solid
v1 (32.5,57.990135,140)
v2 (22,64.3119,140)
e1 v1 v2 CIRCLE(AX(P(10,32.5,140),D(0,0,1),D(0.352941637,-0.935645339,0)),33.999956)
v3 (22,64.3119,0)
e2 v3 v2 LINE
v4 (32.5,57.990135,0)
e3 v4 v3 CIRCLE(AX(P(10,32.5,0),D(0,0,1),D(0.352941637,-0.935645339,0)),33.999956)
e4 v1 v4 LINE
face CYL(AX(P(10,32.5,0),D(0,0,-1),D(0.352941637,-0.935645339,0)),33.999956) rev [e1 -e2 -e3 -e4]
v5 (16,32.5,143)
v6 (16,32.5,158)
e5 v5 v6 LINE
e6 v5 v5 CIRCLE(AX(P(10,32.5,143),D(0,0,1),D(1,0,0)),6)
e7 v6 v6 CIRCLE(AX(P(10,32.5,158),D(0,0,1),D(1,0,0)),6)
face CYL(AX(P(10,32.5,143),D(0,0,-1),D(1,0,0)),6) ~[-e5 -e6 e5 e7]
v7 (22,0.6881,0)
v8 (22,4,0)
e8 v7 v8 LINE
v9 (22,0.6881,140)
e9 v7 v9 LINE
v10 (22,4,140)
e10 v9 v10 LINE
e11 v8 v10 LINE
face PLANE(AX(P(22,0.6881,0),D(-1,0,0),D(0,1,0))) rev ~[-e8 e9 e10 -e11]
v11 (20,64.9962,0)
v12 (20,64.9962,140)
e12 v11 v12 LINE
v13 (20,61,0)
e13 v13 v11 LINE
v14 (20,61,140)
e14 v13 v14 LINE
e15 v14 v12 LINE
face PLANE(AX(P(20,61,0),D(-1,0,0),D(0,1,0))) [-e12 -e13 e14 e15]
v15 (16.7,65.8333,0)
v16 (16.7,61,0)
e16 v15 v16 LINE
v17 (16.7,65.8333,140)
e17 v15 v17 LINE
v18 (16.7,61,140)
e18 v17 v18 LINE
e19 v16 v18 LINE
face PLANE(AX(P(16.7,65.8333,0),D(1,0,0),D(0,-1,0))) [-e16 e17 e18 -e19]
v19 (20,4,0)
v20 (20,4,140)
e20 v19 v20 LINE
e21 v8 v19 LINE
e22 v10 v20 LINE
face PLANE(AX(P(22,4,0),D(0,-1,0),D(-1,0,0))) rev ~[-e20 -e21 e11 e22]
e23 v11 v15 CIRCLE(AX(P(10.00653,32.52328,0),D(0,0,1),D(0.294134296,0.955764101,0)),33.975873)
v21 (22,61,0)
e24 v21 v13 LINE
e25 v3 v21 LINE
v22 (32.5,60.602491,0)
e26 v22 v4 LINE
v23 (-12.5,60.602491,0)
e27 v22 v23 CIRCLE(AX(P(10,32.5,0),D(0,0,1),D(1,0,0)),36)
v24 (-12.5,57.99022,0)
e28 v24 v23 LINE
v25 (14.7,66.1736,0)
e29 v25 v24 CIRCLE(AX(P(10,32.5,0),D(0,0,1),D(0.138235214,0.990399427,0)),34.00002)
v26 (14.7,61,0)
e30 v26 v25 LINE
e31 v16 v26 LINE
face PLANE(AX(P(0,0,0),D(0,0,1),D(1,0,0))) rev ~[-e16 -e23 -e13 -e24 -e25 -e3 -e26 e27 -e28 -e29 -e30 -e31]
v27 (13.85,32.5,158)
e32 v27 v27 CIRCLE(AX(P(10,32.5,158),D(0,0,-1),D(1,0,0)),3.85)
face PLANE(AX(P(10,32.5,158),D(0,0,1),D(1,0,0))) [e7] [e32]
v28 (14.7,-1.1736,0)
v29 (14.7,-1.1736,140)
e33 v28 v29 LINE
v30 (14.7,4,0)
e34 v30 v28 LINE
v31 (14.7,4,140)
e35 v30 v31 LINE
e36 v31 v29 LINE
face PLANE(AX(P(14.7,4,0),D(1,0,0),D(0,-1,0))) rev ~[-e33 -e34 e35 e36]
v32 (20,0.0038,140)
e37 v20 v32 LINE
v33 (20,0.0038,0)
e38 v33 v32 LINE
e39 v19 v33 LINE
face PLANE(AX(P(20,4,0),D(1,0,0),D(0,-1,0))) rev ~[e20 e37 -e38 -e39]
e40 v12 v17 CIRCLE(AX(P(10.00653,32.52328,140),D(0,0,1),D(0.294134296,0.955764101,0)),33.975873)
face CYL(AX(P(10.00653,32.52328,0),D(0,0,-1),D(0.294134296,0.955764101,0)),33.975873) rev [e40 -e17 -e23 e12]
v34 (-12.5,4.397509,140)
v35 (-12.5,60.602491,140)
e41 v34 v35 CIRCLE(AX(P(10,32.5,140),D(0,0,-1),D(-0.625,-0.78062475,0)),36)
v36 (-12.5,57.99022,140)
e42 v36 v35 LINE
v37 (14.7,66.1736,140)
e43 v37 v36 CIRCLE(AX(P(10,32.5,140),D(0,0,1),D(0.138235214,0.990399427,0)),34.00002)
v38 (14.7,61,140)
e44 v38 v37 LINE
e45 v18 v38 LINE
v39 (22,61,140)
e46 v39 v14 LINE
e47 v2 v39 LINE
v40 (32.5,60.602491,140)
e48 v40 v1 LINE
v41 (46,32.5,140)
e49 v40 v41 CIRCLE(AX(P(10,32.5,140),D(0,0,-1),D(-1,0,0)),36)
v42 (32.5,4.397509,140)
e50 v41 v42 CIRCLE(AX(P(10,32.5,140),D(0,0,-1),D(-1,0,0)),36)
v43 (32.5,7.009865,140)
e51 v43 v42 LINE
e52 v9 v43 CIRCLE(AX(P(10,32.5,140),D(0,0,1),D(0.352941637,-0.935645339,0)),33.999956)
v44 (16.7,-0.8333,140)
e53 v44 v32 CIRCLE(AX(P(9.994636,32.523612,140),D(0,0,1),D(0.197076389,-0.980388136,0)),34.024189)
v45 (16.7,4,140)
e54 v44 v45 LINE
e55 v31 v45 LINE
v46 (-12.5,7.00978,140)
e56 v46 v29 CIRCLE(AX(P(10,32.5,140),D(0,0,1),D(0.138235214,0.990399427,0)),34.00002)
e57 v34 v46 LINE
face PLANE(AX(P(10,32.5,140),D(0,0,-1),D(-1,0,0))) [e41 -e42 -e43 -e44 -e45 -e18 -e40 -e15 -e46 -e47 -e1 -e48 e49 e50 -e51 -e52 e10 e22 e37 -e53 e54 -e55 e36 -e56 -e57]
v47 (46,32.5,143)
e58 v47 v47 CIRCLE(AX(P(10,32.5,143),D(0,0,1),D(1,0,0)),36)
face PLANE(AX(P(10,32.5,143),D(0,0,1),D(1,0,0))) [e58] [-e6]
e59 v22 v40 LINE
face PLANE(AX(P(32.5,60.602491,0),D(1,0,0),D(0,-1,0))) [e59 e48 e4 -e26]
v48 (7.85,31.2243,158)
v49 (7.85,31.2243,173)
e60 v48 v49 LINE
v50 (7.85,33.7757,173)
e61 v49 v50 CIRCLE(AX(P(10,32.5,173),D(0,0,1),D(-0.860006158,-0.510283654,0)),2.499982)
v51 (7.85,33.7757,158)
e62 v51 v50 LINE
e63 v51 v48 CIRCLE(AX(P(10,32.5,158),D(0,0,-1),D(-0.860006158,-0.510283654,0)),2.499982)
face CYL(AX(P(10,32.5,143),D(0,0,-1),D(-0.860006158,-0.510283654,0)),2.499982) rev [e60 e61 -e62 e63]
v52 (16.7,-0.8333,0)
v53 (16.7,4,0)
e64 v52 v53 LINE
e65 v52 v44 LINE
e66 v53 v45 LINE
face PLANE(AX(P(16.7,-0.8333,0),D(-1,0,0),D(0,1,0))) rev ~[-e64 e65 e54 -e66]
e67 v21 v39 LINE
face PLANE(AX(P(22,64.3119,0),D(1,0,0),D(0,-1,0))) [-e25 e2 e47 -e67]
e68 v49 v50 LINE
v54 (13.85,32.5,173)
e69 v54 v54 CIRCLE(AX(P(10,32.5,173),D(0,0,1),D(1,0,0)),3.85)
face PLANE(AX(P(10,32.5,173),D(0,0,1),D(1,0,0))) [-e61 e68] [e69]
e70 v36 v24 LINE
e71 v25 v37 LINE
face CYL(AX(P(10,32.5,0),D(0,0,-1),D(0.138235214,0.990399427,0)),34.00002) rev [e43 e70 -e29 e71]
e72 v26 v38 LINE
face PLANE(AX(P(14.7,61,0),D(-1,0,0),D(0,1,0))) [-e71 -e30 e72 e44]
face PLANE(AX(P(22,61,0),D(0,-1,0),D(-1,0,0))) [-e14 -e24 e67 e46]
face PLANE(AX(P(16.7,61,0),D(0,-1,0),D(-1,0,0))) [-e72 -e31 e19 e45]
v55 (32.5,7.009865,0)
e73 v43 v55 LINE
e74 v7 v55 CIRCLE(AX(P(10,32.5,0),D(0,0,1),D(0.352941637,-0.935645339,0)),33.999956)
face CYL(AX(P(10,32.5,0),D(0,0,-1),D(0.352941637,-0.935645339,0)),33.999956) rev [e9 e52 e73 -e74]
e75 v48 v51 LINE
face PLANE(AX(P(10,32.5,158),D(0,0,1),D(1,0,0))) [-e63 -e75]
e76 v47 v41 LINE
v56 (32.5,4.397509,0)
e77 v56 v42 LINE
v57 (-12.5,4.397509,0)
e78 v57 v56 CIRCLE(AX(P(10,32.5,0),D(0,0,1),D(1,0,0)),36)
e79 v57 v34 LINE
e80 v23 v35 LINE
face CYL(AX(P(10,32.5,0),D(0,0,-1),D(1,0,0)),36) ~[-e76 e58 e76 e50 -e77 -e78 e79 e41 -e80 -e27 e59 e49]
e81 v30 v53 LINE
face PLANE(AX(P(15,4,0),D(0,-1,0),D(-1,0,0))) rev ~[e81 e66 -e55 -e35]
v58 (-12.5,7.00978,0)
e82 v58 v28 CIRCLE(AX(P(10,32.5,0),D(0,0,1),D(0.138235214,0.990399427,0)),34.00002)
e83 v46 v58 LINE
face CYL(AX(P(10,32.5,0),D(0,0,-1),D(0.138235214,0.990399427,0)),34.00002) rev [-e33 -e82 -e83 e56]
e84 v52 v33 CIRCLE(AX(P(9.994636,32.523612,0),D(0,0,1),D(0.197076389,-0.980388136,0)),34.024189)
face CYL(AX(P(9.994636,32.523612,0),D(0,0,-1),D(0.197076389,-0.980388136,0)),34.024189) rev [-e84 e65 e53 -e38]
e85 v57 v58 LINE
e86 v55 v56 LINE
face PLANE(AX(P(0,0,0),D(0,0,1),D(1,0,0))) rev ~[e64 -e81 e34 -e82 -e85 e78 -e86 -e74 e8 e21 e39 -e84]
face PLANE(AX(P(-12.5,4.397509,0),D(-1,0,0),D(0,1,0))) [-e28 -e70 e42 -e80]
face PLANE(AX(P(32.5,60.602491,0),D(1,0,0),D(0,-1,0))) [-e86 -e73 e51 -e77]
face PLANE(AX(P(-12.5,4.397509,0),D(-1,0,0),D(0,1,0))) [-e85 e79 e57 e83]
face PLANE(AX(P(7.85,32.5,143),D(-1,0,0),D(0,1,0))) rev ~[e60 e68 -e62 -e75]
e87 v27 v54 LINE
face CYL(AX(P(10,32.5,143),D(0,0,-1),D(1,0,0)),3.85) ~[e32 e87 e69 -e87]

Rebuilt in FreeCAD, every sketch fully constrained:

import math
import FreeCAD as App
import Part
import Sketcher

V = App.Vector
Q = App.Units.Quantity

doc = App.newDocument("Part")
body = doc.addObject("PartDesign::Body", "Body")

# Sketch on XY plane
sketch1 = body.newObject("Sketcher::SketchObject", "Sketch")
sketch1.AttachmentSupport = (doc.getObject("XY_Plane"), [""])
sketch1.MapMode = "FlatFace"
sketch1.addGeometry([
    Part.Circle(V(10, 32.5, 0), V(0, 0, 1), 36),  # 0
    Part.ArcOfCircle(Part.Circle(V(10, 32.5, 0), V(0, 0, 1), 34), math.radians(-69), math.radians(69)),  # 1
    Part.LineSegment(V(22, 0.7, 0), V(22, 4, 0)),  # 2
    Part.LineSegment(V(22, 4, 0), V(20, 4, 0)),  # 3
    Part.LineSegment(V(20, 4, 0), V(20, 0, 0)),  # 4
    Part.ArcOfCircle(Part.Circle(V(10, 32.5, 0), V(0, 0, 1), 34), math.radians(-78.63), math.radians(-72.9)),  # 5
    Part.LineSegment(V(16.7, -0.8, 0), V(16.7, 4, 0)),  # 6
    Part.LineSegment(V(16.7, 4, 0), V(14.7, 4, 0)),  # 7
    Part.LineSegment(V(14.7, 4, 0), V(14.7, -1.2, 0)),  # 8
    Part.ArcOfCircle(Part.Circle(V(10, 32.5, 0), V(0, 0, 1), 34), math.radians(82), math.radians(278)),  # 9
    Part.LineSegment(V(14.7, 66.2, 0), V(14.7, 61, 0)),  # 10
    Part.LineSegment(V(14.7, 61, 0), V(16.7, 61, 0)),  # 11
    Part.LineSegment(V(16.7, 61, 0), V(16.7, 65.8, 0)),  # 12
    Part.ArcOfCircle(Part.Circle(V(10, 32.5, 0), V(0, 0, 1), 34), math.radians(72.89), math.radians(78.64)),  # 13
    Part.LineSegment(V(20, 65, 0), V(20, 61, 0)),  # 14
    Part.LineSegment(V(20, 61, 0), V(22, 61, 0)),  # 15
    Part.LineSegment(V(22, 61, 0), V(22, 64.3, 0)),  # 16
], False)
sketch1.addConstraint([
    Sketcher.Constraint("Coincident", 1, 1, 2, 1),
    Sketcher.Constraint("Coincident", 2, 2, 3, 1),
    Sketcher.Constraint("Coincident", 3, 2, 4, 1),
    Sketcher.Constraint("Coincident", 4, 2, 5, 2),
    Sketcher.Constraint("Coincident", 5, 1, 6, 1),
    Sketcher.Constraint("Coincident", 6, 2, 7, 1),
    Sketcher.Constraint("Coincident", 7, 2, 8, 1),
    Sketcher.Constraint("Coincident", 8, 2, 9, 2),
    Sketcher.Constraint("Coincident", 9, 1, 10, 1),
    Sketcher.Constraint("Coincident", 10, 2, 11, 1),
    Sketcher.Constraint("Coincident", 11, 2, 12, 1),
    Sketcher.Constraint("Coincident", 12, 2, 13, 2),
    Sketcher.Constraint("Coincident", 13, 1, 14, 1),
    Sketcher.Constraint("Coincident", 14, 2, 15, 1),
    Sketcher.Constraint("Coincident", 15, 2, 16, 1),
    Sketcher.Constraint("Coincident", 16, 2, 1, 2),
    Sketcher.Constraint("Vertical", 2),
    Sketcher.Constraint("Horizontal", 3),
    Sketcher.Constraint("Vertical", 4),
    Sketcher.Constraint("Vertical", 6),
    Sketcher.Constraint("Horizontal", 7),
    Sketcher.Constraint("Vertical", 8),
    Sketcher.Constraint("Vertical", 10),
    Sketcher.Constraint("Horizontal", 11),
    Sketcher.Constraint("Vertical", 12),
    Sketcher.Constraint("Vertical", 14),
    Sketcher.Constraint("Horizontal", 15),
    Sketcher.Constraint("Vertical", 16),
    Sketcher.Constraint("Coincident", 1, 3, 0, 3),
    Sketcher.Constraint("Coincident", 9, 3, 0, 3),
    Sketcher.Constraint("Equal", 1, 9),
    Sketcher.Constraint("Horizontal", 3, 2, 6, 2),
    Sketcher.Constraint("Horizontal", 11, 2, 14, 2),
    Sketcher.Constraint("Vertical", 8, 2, 9, 1),
    Sketcher.Constraint("Vertical", 6, 2, 11, 2),
    Sketcher.Constraint("Vertical", 4, 2, 13, 1),
    Sketcher.Constraint("Vertical", 2, 2, 15, 2),
    Sketcher.Constraint("Equal", 3, 7),
    Sketcher.Constraint("Equal", 8, 10),
    Sketcher.Constraint("Equal", 6, 12),
    Sketcher.Constraint("Equal", 4, 14),
    Sketcher.Constraint("Diameter", 0, Q("72 mm")),
    Sketcher.Constraint("Radius", 1, Q("34 mm")),
    Sketcher.Constraint("DistanceX", 3, 2, 3, 1, Q("2 mm")),
    Sketcher.Constraint("DistanceX", -1, 1, 0, 3, Q("10 mm")),
    Sketcher.Constraint("DistanceX", -1, 1, 1, 1, Q("22 mm")),
    Sketcher.Constraint("DistanceY", -1, 1, 2, 2, Q("4 mm")),
    Sketcher.Constraint("DistanceY", -1, 1, 10, 2, Q("61 mm")),
    Sketcher.Constraint("DistanceX", -1, 1, 5, 1, Q("16.7 mm")),
    Sketcher.Constraint("Radius", 5, Q("34.0242 mm")),
    Sketcher.Constraint("Radius", 13, Q("33.9759 mm")),
    Sketcher.Constraint("DistanceY", 5, 3, 9, 1, Q("33.65 mm")),
    Sketcher.Constraint("DistanceY", 13, 3, 12, 2, Q("33.31 mm")),
])
pad1 = body.newObject("PartDesign::Pad", "Pad")
pad1.Profile = sketch1
pad1.Length = 140

# Sketch on XY plane
sketch2 = body.newObject("Sketcher::SketchObject", "Sketch001")
sketch2.AttachmentSupport = (doc.getObject("XY_Plane"), [""])
sketch2.MapMode = "FlatFace"
sketch2.AttachmentOffset = App.Placement(V(0, 0, 140), App.Rotation())
sketch2.addGeometry(Part.Circle(V(10, 32, 0), V(0, 0, 1), 36), False)
sketch2.addConstraint([
    Sketcher.Constraint("Diameter", 0, Q("72 mm")),
    Sketcher.Constraint("DistanceX", -1, 1, 0, 3, Q("10 mm")),
    Sketcher.Constraint("DistanceY", -1, 1, 0, 3, Q("32.5 mm")),
])
pad2 = body.newObject("PartDesign::Pad", "Pad001")
pad2.Profile = sketch2
pad2.Length = 3

# Sketch on XY plane
sketch3 = body.newObject("Sketcher::SketchObject", "Sketch002")
sketch3.AttachmentSupport = (doc.getObject("XY_Plane"), [""])
sketch3.MapMode = "FlatFace"
sketch3.AttachmentOffset = App.Placement(V(0, 0, 143), App.Rotation())
sketch3.addGeometry([
    Part.Circle(V(10, 32.5, 0), V(0, 0, 1), 3.9),
    Part.ArcOfCircle(Part.Circle(V(10, 32.5, 0), V(0, 0, 1), 2.5), math.radians(-149), math.radians(149)),
    Part.LineSegment(V(7.8, 31.2, 0), V(7.8, 33.8, 0)),
], False)
sketch3.addConstraint([
    Sketcher.Constraint("Coincident", 1, 1, 2, 1),
    Sketcher.Constraint("Coincident", 2, 2, 1, 2),
    Sketcher.Constraint("Vertical", 2),
    Sketcher.Constraint("Coincident", 1, 3, 0, 3),
    Sketcher.Constraint("Diameter", 0, Q("7.7 mm")),
    Sketcher.Constraint("Radius", 1, Q("2.5 mm")),
    Sketcher.Constraint("DistanceX", -1, 1, 0, 3, Q("10 mm")),
    Sketcher.Constraint("DistanceY", -1, 1, 0, 3, Q("32.5 mm")),
    Sketcher.Constraint("DistanceX", -1, 1, 1, 1, Q("7.85 mm")),
])
pad3 = body.newObject("PartDesign::Pad", "Pad002")
pad3.Profile = sketch3
pad3.Length = 30

# Sketch on XY plane
sketch4 = body.newObject("Sketcher::SketchObject", "Sketch003")
sketch4.AttachmentSupport = (doc.getObject("XY_Plane"), [""])
sketch4.MapMode = "FlatFace"
sketch4.AttachmentOffset = App.Placement(V(0, 0, 143), App.Rotation())
sketch4.addGeometry(Part.Circle(V(10, 32, 0), V(0, 0, 1), 6), False)
sketch4.addConstraint([
    Sketcher.Constraint("Diameter", 0, Q("12 mm")),
    Sketcher.Constraint("DistanceX", -1, 1, 0, 3, Q("10 mm")),
    Sketcher.Constraint("DistanceY", -1, 1, 0, 3, Q("32.5 mm")),
])
pad4 = body.newObject("PartDesign::Pad", "Pad003")
pad4.Profile = sketch4
pad4.Length = 15

# Sketch on XY plane
sketch5 = body.newObject("Sketcher::SketchObject", "Sketch004")
sketch5.AttachmentSupport = (doc.getObject("XY_Plane"), [""])
sketch5.MapMode = "FlatFace"
sketch5.addGeometry([
    Part.LineSegment(V(32, 4, 0), V(32, 61, 0)),
    Part.ArcOfCircle(Part.Circle(V(10, 32, 0), V(0, 0, 1), 36), math.radians(-51), math.radians(51)),
    Part.ArcOfCircle(Part.Circle(V(10, 32, 0), V(0, 0, 1), 36), math.radians(129), math.radians(231)),
    Part.LineSegment(V(-12, 61, 0), V(-12, 4, 0)),
], False)
sketch5.addConstraint([
    Sketcher.Constraint("Coincident", 0, 1, 1, 1),
    Sketcher.Constraint("Coincident", 1, 2, 0, 2),
    Sketcher.Constraint("Coincident", 2, 1, 3, 1),
    Sketcher.Constraint("Coincident", 3, 2, 2, 2),
    Sketcher.Constraint("Vertical", 0),
    Sketcher.Constraint("Vertical", 3),
    Sketcher.Constraint("Coincident", 2, 3, 1, 3),
    Sketcher.Constraint("Equal", 1, 2),
    Sketcher.Constraint("Horizontal", 1, 2, 2, 1),
    Sketcher.Constraint("Radius", 1, Q("36 mm")),
    Sketcher.Constraint("DistanceX", 2, 1, 1, 2, Q("45 mm")),
    Sketcher.Constraint("DistanceX", -1, 1, 1, 3, Q("10 mm")),
    Sketcher.Constraint("DistanceY", -1, 1, 1, 3, Q("32.5 mm")),
])
pocket1 = body.newObject("PartDesign::Pocket", "Pocket")
pocket1.Profile = sketch5
pocket1.Length = 140
pocket1.Reversed = True

doc.recompute()
